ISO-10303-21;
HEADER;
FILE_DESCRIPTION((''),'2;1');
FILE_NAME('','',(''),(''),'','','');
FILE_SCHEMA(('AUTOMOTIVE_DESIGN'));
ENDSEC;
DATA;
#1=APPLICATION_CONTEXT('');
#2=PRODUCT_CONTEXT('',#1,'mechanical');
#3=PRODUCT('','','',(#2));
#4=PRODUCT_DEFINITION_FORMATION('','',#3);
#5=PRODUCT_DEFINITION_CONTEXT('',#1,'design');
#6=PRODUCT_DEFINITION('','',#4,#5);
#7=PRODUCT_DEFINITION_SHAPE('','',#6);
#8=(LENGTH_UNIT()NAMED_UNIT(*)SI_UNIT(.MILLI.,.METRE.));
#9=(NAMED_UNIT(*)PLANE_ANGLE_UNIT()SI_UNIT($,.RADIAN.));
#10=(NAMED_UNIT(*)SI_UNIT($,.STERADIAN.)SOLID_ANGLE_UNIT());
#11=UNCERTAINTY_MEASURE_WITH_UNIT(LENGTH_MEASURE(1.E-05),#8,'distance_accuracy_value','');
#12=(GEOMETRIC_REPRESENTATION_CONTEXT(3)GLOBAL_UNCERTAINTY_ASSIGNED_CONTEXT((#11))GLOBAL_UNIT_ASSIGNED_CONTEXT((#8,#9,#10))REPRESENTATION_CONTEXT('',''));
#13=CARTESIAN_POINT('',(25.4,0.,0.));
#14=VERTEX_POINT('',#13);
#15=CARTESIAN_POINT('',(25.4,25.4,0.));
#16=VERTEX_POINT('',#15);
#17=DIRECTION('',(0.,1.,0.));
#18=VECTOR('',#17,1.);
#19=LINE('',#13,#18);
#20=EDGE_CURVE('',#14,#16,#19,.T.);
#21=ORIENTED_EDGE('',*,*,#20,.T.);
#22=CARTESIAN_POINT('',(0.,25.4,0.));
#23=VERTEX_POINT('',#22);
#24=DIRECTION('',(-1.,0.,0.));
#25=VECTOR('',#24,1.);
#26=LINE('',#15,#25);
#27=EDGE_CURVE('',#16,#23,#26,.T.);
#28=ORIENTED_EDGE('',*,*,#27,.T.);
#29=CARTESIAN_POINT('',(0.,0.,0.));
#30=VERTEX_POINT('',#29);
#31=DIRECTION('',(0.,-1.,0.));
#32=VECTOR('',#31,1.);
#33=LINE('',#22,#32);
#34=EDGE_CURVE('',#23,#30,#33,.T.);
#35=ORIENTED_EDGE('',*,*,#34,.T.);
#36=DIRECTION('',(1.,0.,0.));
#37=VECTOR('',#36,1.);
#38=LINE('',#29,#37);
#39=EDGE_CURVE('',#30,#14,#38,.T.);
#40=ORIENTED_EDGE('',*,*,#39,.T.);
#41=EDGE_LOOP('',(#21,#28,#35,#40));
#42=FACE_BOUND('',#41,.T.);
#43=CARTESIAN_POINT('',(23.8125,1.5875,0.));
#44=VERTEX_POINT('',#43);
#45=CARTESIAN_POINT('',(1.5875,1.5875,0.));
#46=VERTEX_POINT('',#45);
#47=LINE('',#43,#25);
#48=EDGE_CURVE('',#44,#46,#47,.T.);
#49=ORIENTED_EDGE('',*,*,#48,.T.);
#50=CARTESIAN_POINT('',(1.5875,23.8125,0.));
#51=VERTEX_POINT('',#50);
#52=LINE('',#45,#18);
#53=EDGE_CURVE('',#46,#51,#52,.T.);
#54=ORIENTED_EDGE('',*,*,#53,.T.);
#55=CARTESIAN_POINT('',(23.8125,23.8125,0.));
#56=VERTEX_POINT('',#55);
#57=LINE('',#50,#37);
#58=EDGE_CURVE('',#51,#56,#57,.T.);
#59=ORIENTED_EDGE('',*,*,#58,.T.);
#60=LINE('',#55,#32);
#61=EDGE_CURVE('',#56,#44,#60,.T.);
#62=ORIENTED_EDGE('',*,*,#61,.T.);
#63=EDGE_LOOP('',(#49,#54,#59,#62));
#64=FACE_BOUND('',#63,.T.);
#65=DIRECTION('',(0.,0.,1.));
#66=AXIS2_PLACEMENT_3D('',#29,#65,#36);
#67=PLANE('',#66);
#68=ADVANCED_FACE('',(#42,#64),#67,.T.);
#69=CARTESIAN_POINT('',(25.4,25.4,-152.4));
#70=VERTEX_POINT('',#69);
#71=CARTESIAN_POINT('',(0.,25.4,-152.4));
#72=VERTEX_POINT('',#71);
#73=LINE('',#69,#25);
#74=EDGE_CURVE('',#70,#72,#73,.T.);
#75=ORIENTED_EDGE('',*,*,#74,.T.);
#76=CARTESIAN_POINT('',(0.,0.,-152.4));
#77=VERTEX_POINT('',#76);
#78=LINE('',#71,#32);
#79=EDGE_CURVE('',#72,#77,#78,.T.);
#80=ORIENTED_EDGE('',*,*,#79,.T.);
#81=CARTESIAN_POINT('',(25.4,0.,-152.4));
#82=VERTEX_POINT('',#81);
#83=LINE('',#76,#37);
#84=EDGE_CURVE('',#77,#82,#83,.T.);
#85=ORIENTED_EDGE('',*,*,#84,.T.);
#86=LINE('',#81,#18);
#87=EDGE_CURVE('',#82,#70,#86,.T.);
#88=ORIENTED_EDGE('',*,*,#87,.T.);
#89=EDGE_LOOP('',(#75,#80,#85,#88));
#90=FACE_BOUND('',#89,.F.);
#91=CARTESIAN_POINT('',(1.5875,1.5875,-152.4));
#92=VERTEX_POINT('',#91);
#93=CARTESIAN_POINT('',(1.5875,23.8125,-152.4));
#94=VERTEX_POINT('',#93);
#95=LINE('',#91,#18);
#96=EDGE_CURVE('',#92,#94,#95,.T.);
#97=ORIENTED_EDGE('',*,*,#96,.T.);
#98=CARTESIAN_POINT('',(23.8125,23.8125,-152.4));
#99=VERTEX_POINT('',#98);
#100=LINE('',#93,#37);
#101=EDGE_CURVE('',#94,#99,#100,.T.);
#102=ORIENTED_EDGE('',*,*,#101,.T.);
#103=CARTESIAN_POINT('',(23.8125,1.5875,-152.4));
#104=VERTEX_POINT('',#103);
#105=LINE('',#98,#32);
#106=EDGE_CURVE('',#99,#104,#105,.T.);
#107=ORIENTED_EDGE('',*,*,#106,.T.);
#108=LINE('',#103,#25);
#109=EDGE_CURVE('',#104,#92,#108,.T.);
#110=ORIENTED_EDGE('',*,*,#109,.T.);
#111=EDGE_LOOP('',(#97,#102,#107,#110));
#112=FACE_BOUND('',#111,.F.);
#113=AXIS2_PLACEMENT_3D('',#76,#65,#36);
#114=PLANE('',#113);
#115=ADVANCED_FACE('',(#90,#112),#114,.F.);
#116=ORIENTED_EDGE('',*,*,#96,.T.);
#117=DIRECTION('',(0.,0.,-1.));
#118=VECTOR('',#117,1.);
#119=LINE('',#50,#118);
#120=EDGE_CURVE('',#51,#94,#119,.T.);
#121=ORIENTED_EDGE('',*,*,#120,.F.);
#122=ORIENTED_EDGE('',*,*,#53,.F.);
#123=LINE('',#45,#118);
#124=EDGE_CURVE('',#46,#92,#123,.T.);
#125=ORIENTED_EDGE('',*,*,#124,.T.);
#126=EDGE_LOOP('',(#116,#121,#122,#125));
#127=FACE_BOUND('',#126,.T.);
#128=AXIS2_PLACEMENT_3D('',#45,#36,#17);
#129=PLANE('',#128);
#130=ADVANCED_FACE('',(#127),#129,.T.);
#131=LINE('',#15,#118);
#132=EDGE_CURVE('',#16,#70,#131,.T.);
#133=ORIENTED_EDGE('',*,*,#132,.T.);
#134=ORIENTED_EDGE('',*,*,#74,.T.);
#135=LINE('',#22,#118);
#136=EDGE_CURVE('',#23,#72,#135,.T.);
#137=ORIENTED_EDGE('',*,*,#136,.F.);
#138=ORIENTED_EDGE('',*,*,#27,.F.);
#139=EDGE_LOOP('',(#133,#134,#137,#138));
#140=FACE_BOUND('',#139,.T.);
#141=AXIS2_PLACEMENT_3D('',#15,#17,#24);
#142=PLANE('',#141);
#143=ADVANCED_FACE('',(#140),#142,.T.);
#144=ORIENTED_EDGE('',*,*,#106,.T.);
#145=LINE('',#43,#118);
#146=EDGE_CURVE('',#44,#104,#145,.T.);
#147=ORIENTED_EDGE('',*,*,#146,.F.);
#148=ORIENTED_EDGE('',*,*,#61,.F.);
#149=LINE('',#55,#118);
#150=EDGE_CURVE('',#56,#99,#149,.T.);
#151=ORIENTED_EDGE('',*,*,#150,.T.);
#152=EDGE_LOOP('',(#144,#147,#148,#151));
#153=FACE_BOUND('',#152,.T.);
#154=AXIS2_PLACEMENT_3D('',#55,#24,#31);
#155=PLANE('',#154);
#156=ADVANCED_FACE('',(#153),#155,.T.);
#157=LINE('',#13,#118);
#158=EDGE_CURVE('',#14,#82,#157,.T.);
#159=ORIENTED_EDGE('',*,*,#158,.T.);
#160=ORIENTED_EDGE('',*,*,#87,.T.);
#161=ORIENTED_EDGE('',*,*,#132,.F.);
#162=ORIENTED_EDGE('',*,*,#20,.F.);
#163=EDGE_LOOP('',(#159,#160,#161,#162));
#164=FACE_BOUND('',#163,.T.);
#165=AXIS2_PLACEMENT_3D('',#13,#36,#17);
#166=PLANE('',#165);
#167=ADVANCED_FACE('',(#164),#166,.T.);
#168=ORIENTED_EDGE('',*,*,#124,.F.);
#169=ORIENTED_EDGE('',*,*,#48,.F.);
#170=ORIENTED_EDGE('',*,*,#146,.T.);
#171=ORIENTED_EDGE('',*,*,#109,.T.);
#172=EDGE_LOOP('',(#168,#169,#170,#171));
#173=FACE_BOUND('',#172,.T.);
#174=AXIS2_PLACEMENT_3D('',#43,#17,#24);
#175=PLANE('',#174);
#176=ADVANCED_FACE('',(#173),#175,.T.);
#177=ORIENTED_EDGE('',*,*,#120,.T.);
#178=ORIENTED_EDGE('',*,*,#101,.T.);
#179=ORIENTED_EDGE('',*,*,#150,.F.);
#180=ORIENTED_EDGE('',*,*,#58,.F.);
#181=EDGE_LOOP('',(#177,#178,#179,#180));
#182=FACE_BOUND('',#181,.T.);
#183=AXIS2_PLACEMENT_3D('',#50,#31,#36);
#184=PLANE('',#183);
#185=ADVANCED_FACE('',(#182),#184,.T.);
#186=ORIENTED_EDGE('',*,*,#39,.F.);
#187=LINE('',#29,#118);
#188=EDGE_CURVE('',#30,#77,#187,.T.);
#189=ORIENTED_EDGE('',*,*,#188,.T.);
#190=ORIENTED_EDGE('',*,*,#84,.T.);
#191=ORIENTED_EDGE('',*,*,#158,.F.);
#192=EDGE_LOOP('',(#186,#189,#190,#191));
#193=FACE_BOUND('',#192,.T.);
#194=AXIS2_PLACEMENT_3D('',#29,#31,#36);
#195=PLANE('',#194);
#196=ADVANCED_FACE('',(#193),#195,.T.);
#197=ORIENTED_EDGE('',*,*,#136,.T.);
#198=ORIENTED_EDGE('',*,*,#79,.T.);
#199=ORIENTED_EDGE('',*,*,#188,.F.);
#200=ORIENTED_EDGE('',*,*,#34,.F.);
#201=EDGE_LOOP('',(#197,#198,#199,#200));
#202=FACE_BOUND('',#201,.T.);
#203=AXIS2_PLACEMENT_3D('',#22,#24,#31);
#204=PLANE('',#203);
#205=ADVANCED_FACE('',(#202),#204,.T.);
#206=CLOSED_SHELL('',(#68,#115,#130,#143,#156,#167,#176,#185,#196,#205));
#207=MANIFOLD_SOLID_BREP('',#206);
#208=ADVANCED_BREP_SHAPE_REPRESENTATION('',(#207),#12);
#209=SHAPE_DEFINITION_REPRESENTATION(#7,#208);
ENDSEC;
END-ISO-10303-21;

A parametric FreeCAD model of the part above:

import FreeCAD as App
import Part
import Sketcher

V = App.Vector
Q = App.Units.Quantity


def add_polygon(sketch, points):
    """Adds a closed chain of lines whose ends are joined by coincident constraints."""
    first, n = sketch.GeometryCount, len(points)
    for a, b in zip(points, points[1:] + points[:1]):
        sketch.addGeometry(Part.LineSegment(App.Vector(*a, 0), App.Vector(*b, 0)), False)
    for i in range(n):
        sketch.addConstraint(Sketcher.Constraint("Coincident", first + i, 2, first + (i + 1) % n, 1))

doc = App.newDocument("Part")
body = doc.addObject("PartDesign::Body", "Body")

# Sketch on XY plane
sketch1 = doc.addObject("Sketcher::SketchObject", "Sketch")
body.addObject(sketch1)
sketch1.AttachmentSupport = (doc.XY_Plane, [""])
sketch1.MapMode = "FlatFace"
add_polygon(sketch1, [(0, 25), (0, 0), (25, 0), (25, 25)])  # lines 0-3
add_polygon(sketch1, [(2, 2), (2, 24), (24, 24), (24, 2)])  # lines 4-7
sketch1.addConstraint([
    Sketcher.Constraint("Vertical", 0),
    Sketcher.Constraint("Horizontal", 1),
    Sketcher.Constraint("Vertical", 2),
    Sketcher.Constraint("Horizontal", 3),
    Sketcher.Constraint("Vertical", 4),
    Sketcher.Constraint("Horizontal", 5),
    Sketcher.Constraint("Vertical", 6),
    Sketcher.Constraint("Horizontal", 7),
    Sketcher.Constraint("Coincident", 0, 2, -1, 1),
    Sketcher.Constraint("Equal", 3, 0),
    Sketcher.Constraint("Equal", 7, 4),
    Sketcher.Constraint("DistanceX", 1, 1, 1, 2, Q("1 in")),
    Sketcher.Constraint("DistanceX", -1, 1, 4, 2, Q("0.0625 in")),
    Sketcher.Constraint("DistanceY", -1, 1, 6, 2, Q("0.0625 in")),
    Sketcher.Constraint("DistanceY", 4, 2, 3, 2, Q("0.0625 in")),
])
pad1 = doc.addObject("PartDesign::Pad", "Pad")
body.addObject(pad1)
pad1.Profile = sketch1
pad1.Length = Q("6 in")
pad1.Reversed = True

doc.recompute()
